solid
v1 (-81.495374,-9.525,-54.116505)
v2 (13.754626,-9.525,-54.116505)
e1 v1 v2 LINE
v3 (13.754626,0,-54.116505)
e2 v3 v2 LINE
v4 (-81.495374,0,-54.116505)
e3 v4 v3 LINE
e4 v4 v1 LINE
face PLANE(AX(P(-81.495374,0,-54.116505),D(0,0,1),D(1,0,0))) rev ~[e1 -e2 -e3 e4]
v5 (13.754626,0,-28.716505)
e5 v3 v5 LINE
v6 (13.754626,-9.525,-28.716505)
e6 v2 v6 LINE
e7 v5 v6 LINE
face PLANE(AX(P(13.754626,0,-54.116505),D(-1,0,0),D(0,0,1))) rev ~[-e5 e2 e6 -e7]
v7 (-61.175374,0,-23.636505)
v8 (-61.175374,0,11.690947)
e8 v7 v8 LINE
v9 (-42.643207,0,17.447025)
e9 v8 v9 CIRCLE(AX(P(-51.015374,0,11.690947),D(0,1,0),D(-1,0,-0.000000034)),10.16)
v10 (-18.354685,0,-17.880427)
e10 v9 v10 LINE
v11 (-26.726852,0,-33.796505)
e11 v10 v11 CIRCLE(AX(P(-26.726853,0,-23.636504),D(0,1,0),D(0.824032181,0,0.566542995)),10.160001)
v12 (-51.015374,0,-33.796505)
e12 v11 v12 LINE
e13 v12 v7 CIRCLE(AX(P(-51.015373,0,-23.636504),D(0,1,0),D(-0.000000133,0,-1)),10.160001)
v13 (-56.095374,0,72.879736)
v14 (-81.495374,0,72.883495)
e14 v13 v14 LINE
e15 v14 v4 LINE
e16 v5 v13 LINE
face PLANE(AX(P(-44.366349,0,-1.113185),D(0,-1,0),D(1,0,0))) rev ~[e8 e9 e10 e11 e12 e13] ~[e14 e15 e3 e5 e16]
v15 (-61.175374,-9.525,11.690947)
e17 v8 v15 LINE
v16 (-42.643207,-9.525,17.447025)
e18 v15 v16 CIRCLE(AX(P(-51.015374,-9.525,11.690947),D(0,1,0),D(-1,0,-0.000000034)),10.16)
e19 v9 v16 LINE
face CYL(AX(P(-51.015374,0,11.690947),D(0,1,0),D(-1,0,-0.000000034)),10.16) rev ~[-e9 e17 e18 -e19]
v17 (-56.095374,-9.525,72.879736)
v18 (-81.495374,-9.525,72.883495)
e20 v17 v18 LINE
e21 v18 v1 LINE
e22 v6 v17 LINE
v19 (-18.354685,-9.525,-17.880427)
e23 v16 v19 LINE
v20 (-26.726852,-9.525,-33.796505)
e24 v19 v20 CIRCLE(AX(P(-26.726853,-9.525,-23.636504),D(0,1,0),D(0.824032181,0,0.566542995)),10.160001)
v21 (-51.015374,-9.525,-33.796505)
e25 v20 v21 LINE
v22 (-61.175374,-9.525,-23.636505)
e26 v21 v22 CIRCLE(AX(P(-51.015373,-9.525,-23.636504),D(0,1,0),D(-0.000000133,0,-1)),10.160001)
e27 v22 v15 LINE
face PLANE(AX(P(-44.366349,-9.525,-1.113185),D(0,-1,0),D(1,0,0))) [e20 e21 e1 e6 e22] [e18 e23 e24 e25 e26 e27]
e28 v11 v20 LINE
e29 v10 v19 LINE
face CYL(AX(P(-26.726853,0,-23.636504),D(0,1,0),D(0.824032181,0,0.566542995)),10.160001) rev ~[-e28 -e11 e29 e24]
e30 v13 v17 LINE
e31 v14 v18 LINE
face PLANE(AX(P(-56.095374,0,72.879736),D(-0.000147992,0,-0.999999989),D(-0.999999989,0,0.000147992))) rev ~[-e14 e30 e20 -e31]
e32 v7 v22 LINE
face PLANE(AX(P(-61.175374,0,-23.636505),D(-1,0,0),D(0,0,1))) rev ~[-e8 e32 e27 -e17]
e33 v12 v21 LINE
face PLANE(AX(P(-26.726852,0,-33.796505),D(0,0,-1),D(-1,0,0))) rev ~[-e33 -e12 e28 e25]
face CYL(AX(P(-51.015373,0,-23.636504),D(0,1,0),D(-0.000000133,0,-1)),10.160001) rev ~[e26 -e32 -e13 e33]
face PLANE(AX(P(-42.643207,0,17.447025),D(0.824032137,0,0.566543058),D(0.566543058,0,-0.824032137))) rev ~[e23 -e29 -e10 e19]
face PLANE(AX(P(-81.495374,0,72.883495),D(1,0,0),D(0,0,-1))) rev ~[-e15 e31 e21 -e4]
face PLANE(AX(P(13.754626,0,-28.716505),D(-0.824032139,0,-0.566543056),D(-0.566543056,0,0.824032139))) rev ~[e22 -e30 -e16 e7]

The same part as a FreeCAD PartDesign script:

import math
import FreeCAD as App
import Part
import Sketcher
Q = App.Units.Quantity


def add_polygon(sketch, points):
    """Adds a closed chain of lines whose ends are joined by coincident constraints."""
    first, n = sketch.GeometryCount, len(points)
    for a, b in zip(points, points[1:] + points[:1]):
        sketch.addGeometry(Part.LineSegment(App.Vector(*a, 0), App.Vector(*b, 0)), False)
    for i in range(n):
        sketch.addConstraint(Sketcher.Constraint("Coincident", first + i, 2, first + (i + 1) % n, 1))

doc = App.newDocument("Part")
body = doc.addObject("PartDesign::Body", "Body")

# Sketch on XZ plane
sketch1 = doc.addObject("Sketcher::SketchObject", "Sketch")
body.addObject(sketch1)
sketch1.AttachmentSupport = (doc.XZ_Plane, [""])
sketch1.MapMode = "FlatFace"
add_polygon(sketch1, [(-56, 73), (-81, 73), (-81, -54), (14, -54), (14, -29)])  # lines 0-4
sketch1.addGeometry(Part.LineSegment(App.Vector(-61, -24, 0), App.Vector(-61, 12, 0)), False)  # 5
sketch1.addGeometry(Part.ArcOfCircle(Part.Circle(App.Vector(-51, 12, 0), App.Vector(0, 0, 1), 10), math.radians(35), math.radians(180)), False)  # 6
sketch1.addGeometry(Part.LineSegment(App.Vector(-43, 17, 0), App.Vector(-18, -18, 0)), False)  # 7
sketch1.addGeometry(Part.ArcOfCircle(Part.Circle(App.Vector(-27, -24, 0), App.Vector(0, 0, 1), 10), math.radians(-90), math.radians(35)), False)  # 8
sketch1.addGeometry(Part.LineSegment(App.Vector(-27, -34, 0), App.Vector(-51, -34, 0)), False)  # 9
sketch1.addGeometry(Part.ArcOfCircle(Part.Circle(App.Vector(-51, -24, 0), App.Vector(0, 0, 1), 10), math.radians(-180), math.radians(-90)), False)  # 10
sketch1.addConstraint(Sketcher.Constraint("Tangent", 5, 2, 6, 2))
sketch1.addConstraint(Sketcher.Constraint("Tangent", 6, 1, 7, 1))
sketch1.addConstraint(Sketcher.Constraint("Tangent", 7, 2, 8, 2))
sketch1.addConstraint(Sketcher.Constraint("Tangent", 8, 1, 9, 1))
sketch1.addConstraint(Sketcher.Constraint("Tangent", 9, 2, 10, 2))
sketch1.addConstraint(Sketcher.Constraint("Tangent", 10, 1, 5, 1))
sketch1.addConstraint(Sketcher.Constraint("Vertical", 1))
sketch1.addConstraint(Sketcher.Constraint("Horizontal", 2))
sketch1.addConstraint(Sketcher.Constraint("Vertical", 3))
sketch1.addConstraint(Sketcher.Constraint("Vertical", 5))
sketch1.addConstraint(Sketcher.Constraint("Horizontal", 9))
sketch1.addConstraint(Sketcher.Constraint("Equal", 6, 8))
sketch1.addConstraint(Sketcher.Constraint("Equal", 8, 10))
sketch1.addConstraint(Sketcher.Constraint("Parallel", 4, 7))
sketch1.addConstraint(Sketcher.Constraint("Radius", 6, Q("0.4 in")))
sketch1.addConstraint(Sketcher.Constraint("DistanceY", 1, 2, 1, 1, Q("5 in")))
sketch1.addConstraint(Sketcher.Constraint("DistanceY", 3, 1, 3, 2, Q("1 in")))
sketch1.addConstraint(Sketcher.Constraint("Distance", 0, Q("1 in")))
sketch1.addConstraint(Sketcher.Constraint("DistanceX", 2, 1, 2, 2, Q("3.75 in")))
sketch1.addConstraint(Sketcher.Constraint("DistanceX", 0, 2, 6, 3, Q("1.2 in")))
sketch1.addConstraint(Sketcher.Constraint("DistanceY", 10, 3, 0, 2, Q("3.7999999 in")))
sketch1.addConstraint(Sketcher.Constraint("Distance", 4, Q("4.854 in")))
sketch1.addConstraint(Sketcher.Constraint("Distance", 7, 42.871449))
sketch1.addConstraint(Sketcher.Constraint("DistanceX", 6, 3, -1, 1, 51.015374))
sketch1.addConstraint(Sketcher.Constraint("DistanceY", -1, 1, 6, 3, 11.690947))
pad1 = doc.addObject("PartDesign::Pad", "Pad")
body.addObject(pad1)
pad1.Profile = sketch1
pad1.Length = Q("0.375 in")

doc.recompute()
